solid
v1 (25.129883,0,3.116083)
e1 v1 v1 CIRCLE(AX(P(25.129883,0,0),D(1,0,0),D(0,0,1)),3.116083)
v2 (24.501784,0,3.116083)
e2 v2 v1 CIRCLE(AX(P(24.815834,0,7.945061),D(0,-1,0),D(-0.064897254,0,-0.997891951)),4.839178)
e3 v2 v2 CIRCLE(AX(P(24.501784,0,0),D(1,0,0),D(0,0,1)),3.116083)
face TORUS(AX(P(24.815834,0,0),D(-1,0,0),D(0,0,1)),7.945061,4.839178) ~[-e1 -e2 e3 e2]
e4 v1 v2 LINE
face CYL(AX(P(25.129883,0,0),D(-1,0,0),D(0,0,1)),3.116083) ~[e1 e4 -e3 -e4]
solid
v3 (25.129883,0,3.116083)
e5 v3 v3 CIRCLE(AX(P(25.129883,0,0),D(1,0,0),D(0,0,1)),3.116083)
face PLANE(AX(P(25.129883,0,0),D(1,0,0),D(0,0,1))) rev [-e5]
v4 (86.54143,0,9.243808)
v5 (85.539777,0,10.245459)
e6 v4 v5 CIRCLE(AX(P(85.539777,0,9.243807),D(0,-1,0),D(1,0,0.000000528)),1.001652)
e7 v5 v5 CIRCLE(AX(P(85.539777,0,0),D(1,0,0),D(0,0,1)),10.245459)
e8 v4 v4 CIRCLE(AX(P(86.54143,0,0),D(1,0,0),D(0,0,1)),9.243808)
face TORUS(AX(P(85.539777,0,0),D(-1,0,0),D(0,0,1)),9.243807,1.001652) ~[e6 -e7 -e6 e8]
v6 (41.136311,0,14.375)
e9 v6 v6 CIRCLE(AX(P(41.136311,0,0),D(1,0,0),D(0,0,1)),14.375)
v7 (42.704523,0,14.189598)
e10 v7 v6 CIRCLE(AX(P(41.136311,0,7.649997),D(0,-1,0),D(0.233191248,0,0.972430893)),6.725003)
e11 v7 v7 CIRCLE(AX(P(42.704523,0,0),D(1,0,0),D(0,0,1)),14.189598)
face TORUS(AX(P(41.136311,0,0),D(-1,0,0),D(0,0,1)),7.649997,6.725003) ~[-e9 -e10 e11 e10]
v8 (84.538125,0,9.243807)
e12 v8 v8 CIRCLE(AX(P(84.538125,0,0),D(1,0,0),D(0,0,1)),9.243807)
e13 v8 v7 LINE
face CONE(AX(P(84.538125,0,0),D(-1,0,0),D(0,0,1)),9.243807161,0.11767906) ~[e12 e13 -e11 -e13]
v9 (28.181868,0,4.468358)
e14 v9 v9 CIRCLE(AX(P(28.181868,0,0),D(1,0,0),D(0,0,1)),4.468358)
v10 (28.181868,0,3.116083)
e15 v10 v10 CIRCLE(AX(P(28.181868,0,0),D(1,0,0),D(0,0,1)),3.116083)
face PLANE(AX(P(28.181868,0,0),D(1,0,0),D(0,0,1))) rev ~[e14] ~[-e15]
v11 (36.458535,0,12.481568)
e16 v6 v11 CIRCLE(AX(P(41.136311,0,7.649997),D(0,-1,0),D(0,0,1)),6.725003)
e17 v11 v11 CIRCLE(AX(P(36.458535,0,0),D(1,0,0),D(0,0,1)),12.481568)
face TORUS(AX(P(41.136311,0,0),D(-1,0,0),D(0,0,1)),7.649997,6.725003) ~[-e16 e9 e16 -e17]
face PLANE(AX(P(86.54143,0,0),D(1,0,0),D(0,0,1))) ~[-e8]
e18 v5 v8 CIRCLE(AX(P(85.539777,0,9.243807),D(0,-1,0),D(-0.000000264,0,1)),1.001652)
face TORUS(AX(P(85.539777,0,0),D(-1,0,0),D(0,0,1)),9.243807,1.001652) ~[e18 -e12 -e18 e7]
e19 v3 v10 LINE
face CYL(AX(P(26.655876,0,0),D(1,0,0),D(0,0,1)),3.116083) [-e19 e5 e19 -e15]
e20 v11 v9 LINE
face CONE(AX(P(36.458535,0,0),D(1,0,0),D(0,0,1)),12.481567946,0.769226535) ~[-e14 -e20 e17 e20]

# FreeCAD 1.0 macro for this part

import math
import FreeCAD as App
import Part
import Sketcher

V = App.Vector
Q = App.Units.Quantity

doc = App.newDocument("Part")
body = doc.addObject("PartDesign::Body", "Body")

# Sketch on XZ plane
sketch1 = doc.addObject("Sketcher::SketchObject", "Sketch")
body.addObject(sketch1)
sketch1.AttachmentSupport = (doc.XZ_Plane, [""])
sketch1.MapMode = "FlatFace"
sketch1.addGeometry([
    Part.LineSegment(V(25.1, 3.1, 0), V(25.1, 0, 0)),  # 0
    Part.LineSegment(V(25.1, 0, 0), V(86.5, 0, 0)),  # 1
    Part.LineSegment(V(86.5, 0, 0), V(86.5, 9.2, 0)),  # 2
    Part.ArcOfCircle(Part.Circle(V(85.5, 9.2, 0), V(0, 0, 1), 1), math.radians(0), math.radians(90)),  # 3
    Part.ArcOfCircle(Part.Circle(V(85.5, 9.2, 0), V(0, 0, 1), 1), math.radians(90), math.radians(180)),  # 4
    Part.LineSegment(V(84.5, 9.2, 0), V(42.7, 14.2, 0)),  # 5
    Part.ArcOfCircle(Part.Circle(V(41.1, 7.6, 0), V(0, 0, 1), 6.7), math.radians(76.51), math.radians(90)),  # 6
    Part.ArcOfCircle(Part.Circle(V(41.1, 7.6, 0), V(0, 0, 1), 6.7), math.radians(90), math.radians(134)),  # 7
    Part.LineSegment(V(36.5, 12.5, 0), V(28.2, 4.5, 0)),  # 8
    Part.LineSegment(V(28.2, 4.5, 0), V(28.2, 3.1, 0)),  # 9
    Part.LineSegment(V(28.2, 3.1, 0), V(25.1, 3.1, 0)),  # 10
], False)
sketch1.addConstraint([
    Sketcher.Constraint("Coincident", 0, 2, 1, 1),
    Sketcher.Constraint("Coincident", 1, 2, 2, 1),
    Sketcher.Constraint("Tangent", 2, 2, 3, 1),
    Sketcher.Constraint("Tangent", 3, 2, 4, 1),
    Sketcher.Constraint("Coincident", 4, 2, 5, 1),
    Sketcher.Constraint("Coincident", 5, 2, 6, 1),
    Sketcher.Constraint("Tangent", 6, 2, 7, 1),
    Sketcher.Constraint("Tangent", 7, 2, 8, 1),
    Sketcher.Constraint("Coincident", 8, 2, 9, 1),
    Sketcher.Constraint("Coincident", 9, 2, 10, 1),
    Sketcher.Constraint("Coincident", 10, 2, 0, 1),
    Sketcher.Constraint("Vertical", 0),
    Sketcher.Constraint("Horizontal", 1),
    Sketcher.Constraint("Vertical", 2),
    Sketcher.Constraint("Vertical", 9),
    Sketcher.Constraint("Horizontal", 10),
    Sketcher.Constraint("Equal", 3, 4),
    Sketcher.Constraint("Equal", 6, 7),
    Sketcher.Constraint("PointOnObject", 0, 2, -1),
    Sketcher.Constraint("Horizontal", 2, 2, 4, 2),
    Sketcher.Constraint("Vertical", 4, 3, 3, 2),
    Sketcher.Constraint("Vertical", 7, 3, 6, 2),
    Sketcher.Constraint("DistanceY", -1, 1, 6, 2, Q("14.375 mm")),
    Sketcher.Constraint("Radius", 3, Q("1.001652 mm")),
    Sketcher.Constraint("Radius", 6, Q("6.725003 mm")),
    Sketcher.Constraint("DistanceY", 7, 3, 5, 2, Q("6.539601 mm")),
    Sketcher.Constraint("Distance", 8, Q("11.520188 mm")),
    Sketcher.Constraint("DistanceX", 1, 1, 1, 2, Q("61.411547 mm")),
    Sketcher.Constraint("DistanceX", 10, 2, 10, 1, Q("3.051985 mm")),
    Sketcher.Constraint("DistanceY", 0, 2, 0, 1, Q("3.116083 mm")),
    Sketcher.Constraint("DistanceY", 2, 1, 2, 2, Q("9.243808 mm")),
    Sketcher.Constraint("DistanceY", 9, 2, 9, 1, Q("1.352275 mm")),
    Sketcher.Constraint("DistanceX", -1, 1, 6, 3, Q("41.136311 mm")),
])
revolution = doc.addObject("PartDesign::Revolution", "Revolution")
body.addObject(revolution)
revolution.Profile = sketch1
revolution.ReferenceAxis = (sketch1, ["H_Axis"])
revolution.Angle = 360
body2 = doc.addObject("PartDesign::Body", "Body001")

# Sketch on XZ plane
sketch2 = doc.addObject("Sketcher::SketchObject", "Sketch001")
body2.addObject(sketch2)
sketch2.AttachmentSupport = (doc.getObject("XZ_Plane001"), [""])
sketch2.MapMode = "FlatFace"
sketch2.addGeometry([
    Part.LineSegment(V(25.1, 3.1, 0), V(24.5, 3.1, 0)),
    Part.ArcOfCircle(Part.Circle(V(24.8, 7.9, 0), V(0, 0, 1), 4.8), math.radians(-93.72), math.radians(-86.28)),
], False)
sketch2.addConstraint([
    Sketcher.Constraint("Coincident", 0, 1, 1, 2),
    Sketcher.Constraint("Coincident", 1, 1, 0, 2),
    Sketcher.Constraint("Horizontal", 0),
    Sketcher.Constraint("Radius", 1, Q("4.839178 mm")),
    Sketcher.Constraint("DistanceX", 0, 2, 0, 1, Q("0.628099 mm")),
    Sketcher.Constraint("DistanceY", -1, 1, 1, 3, Q("7.945061 mm")),
    Sketcher.Constraint("DistanceX", -1, 1, 1, 3, Q("24.815834 mm")),
])
revolution2 = doc.addObject("PartDesign::Revolution", "Revolution001")
body2.addObject(revolution2)
revolution2.Profile = sketch2
revolution2.ReferenceAxis = (sketch2, ["H_Axis"])
revolution2.Angle = 360

doc.recompute()
